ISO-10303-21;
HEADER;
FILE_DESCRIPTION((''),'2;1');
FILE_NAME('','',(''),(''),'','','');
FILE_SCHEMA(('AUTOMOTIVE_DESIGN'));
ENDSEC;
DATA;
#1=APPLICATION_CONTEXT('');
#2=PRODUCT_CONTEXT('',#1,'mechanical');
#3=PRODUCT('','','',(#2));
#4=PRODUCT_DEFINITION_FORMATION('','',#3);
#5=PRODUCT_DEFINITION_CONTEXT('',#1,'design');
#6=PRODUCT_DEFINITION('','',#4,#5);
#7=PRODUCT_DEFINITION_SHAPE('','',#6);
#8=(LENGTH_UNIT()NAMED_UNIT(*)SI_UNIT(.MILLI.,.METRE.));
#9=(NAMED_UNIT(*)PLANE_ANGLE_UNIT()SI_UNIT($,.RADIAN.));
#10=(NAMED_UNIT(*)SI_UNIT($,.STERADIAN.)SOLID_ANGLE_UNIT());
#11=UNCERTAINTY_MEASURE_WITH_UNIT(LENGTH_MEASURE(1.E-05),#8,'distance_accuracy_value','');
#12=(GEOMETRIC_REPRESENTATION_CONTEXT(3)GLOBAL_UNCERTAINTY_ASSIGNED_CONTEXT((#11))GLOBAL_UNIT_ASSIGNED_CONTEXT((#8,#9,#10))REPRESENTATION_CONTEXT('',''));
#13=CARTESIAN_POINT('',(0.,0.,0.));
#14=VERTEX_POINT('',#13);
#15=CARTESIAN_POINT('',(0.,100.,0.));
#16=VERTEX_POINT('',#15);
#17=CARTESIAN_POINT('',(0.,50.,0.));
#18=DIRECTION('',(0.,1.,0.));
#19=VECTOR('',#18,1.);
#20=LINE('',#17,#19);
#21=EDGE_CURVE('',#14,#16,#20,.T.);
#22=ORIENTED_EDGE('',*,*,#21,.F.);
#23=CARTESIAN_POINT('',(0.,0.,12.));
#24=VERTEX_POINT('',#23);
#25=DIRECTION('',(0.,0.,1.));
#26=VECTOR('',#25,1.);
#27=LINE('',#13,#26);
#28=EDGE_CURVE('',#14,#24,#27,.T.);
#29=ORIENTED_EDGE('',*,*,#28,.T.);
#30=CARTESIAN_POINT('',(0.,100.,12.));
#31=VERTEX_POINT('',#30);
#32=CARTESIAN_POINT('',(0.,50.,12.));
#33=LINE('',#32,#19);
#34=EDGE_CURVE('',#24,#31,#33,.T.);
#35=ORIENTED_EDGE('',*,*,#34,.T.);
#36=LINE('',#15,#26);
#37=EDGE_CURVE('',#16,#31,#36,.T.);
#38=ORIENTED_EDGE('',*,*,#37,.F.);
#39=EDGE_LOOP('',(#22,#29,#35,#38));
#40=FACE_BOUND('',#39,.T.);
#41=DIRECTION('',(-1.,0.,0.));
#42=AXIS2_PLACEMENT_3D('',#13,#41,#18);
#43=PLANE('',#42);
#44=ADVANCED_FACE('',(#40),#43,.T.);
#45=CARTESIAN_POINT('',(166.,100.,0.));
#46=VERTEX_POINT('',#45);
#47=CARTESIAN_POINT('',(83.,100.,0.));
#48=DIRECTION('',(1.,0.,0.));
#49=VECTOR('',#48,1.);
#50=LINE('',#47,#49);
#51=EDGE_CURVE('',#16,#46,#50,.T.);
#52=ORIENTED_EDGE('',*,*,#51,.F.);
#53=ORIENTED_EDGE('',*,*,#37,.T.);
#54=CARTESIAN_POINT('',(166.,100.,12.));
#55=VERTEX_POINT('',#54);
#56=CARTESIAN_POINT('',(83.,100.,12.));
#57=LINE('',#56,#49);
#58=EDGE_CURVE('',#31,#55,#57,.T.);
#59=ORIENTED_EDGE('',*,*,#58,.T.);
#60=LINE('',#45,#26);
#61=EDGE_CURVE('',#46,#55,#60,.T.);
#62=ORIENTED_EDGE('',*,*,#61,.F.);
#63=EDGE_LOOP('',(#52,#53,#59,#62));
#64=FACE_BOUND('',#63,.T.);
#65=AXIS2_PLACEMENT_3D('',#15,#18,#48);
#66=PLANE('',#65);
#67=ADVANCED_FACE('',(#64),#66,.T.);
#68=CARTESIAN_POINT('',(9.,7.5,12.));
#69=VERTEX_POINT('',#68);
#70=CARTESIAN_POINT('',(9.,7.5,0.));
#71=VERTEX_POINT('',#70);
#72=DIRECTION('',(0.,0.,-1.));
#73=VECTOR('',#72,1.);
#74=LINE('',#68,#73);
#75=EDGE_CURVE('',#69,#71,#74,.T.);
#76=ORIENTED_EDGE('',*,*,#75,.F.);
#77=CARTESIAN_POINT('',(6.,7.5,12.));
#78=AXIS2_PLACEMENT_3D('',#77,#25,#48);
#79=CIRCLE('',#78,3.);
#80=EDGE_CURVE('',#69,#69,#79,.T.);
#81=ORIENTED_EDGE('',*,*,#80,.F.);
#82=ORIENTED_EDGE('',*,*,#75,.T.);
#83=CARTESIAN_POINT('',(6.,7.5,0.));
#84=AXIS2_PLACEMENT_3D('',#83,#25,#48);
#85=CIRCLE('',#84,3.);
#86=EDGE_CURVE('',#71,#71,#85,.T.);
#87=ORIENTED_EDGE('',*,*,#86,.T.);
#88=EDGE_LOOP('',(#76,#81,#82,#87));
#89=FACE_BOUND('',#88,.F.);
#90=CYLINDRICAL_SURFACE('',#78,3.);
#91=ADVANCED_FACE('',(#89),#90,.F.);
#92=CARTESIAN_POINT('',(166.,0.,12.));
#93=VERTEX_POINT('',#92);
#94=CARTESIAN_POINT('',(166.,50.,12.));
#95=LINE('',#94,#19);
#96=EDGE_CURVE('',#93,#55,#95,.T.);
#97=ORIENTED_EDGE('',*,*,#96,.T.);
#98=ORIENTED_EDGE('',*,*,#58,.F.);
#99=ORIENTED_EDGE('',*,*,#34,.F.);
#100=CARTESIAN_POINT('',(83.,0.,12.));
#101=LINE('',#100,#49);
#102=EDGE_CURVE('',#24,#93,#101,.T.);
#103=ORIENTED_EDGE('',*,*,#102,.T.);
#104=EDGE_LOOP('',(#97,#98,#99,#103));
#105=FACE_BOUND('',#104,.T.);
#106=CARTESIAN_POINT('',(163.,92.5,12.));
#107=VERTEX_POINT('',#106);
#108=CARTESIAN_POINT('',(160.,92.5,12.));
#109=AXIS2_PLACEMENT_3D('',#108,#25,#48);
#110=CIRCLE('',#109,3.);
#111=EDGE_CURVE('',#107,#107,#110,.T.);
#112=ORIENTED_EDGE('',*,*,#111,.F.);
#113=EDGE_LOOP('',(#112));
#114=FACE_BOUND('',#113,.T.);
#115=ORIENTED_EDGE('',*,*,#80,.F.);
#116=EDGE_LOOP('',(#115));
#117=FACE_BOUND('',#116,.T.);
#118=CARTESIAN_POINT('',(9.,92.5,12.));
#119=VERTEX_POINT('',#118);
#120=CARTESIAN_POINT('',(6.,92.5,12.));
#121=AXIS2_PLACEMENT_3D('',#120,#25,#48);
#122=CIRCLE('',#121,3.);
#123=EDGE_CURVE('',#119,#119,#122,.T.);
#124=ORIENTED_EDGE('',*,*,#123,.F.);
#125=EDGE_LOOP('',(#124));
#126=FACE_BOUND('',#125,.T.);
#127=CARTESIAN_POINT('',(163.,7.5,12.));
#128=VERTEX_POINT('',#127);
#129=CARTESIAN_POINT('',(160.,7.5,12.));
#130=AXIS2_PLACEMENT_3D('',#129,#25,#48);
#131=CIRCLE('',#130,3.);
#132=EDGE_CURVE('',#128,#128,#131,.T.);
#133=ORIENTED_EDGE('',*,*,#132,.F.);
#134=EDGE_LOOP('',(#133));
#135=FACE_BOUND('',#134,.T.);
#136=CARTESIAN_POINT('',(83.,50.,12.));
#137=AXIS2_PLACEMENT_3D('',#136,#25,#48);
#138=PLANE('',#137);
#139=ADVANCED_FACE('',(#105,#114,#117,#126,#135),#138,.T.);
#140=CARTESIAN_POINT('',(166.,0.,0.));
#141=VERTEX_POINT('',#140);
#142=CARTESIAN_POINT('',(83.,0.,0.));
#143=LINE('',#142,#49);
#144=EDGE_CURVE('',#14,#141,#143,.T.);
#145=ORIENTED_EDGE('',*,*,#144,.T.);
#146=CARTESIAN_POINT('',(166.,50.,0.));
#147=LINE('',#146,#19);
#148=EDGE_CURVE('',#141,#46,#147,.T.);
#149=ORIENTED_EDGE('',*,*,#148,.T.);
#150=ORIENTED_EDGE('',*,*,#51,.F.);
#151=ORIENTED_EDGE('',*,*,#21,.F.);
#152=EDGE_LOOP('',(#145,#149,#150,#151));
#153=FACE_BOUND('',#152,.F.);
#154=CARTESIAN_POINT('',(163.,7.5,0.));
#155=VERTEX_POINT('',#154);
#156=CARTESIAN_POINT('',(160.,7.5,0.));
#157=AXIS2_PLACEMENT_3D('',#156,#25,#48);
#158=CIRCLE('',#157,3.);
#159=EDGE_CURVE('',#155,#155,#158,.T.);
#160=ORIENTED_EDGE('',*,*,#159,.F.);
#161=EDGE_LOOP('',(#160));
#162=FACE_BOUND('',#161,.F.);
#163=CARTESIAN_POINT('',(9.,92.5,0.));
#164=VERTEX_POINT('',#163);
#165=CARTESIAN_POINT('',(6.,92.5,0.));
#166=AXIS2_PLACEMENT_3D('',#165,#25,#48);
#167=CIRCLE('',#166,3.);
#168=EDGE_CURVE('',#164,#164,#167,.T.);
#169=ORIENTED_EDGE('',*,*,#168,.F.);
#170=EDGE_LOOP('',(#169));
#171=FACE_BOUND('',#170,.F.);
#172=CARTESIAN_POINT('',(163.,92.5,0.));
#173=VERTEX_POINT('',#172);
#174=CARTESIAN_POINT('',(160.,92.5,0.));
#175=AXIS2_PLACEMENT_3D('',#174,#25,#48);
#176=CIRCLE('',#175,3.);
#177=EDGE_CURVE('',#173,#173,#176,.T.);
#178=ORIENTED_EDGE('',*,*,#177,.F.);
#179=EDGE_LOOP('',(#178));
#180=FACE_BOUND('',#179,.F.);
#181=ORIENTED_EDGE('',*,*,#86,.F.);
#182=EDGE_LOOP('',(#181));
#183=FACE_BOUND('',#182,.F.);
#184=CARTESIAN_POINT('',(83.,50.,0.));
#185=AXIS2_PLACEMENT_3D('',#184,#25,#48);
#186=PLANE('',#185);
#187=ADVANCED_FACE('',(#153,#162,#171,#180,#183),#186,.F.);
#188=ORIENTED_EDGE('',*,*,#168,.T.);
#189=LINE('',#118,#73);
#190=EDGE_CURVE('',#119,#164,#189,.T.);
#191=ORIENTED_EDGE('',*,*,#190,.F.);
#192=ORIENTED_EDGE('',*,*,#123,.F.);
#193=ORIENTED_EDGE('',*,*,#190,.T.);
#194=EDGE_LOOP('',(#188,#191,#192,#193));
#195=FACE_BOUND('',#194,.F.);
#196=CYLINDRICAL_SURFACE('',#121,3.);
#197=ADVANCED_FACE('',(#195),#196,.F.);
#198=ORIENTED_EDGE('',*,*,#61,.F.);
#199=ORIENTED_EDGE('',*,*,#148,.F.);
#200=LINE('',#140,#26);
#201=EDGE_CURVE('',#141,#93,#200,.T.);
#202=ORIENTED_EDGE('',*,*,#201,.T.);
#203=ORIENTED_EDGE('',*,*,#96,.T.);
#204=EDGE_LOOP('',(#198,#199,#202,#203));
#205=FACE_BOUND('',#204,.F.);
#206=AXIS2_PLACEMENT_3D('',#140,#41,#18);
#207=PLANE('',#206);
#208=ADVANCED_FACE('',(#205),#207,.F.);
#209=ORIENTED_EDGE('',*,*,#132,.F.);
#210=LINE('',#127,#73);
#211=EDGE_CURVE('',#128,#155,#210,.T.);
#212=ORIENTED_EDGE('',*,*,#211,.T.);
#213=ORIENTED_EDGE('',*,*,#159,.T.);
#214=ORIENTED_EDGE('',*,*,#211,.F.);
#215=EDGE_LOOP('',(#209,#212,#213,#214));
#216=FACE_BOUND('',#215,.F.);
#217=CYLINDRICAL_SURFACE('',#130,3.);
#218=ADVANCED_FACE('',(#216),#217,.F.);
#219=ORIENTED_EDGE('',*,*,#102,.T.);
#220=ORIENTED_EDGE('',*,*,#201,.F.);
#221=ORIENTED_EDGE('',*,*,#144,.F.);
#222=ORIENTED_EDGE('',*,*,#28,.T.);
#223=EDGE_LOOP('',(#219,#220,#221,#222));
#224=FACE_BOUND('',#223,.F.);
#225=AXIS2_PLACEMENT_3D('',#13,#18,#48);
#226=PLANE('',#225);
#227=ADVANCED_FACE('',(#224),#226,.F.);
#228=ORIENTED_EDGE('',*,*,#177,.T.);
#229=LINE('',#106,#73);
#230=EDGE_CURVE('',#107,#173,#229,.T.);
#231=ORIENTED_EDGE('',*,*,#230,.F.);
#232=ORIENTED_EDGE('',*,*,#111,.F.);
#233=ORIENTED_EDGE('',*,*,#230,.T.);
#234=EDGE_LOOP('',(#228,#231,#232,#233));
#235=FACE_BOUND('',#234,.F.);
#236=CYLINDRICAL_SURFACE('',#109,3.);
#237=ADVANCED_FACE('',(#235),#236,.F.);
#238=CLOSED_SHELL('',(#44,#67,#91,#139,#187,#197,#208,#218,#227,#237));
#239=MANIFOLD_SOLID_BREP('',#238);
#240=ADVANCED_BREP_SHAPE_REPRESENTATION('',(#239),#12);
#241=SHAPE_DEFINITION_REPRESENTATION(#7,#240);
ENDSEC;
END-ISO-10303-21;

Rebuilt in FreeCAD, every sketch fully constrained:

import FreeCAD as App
import Part
import Sketcher
from FreeCAD import Vector


def add_polygon(sketch, points):
    """Adds a closed chain of lines whose ends are joined by coincident constraints."""
    first, n = sketch.GeometryCount, len(points)
    for a, b in zip(points, points[1:] + points[:1]):
        sketch.addGeometry(Part.LineSegment(App.Vector(*a, 0), App.Vector(*b, 0)), False)
    for i in range(n):
        sketch.addConstraint(Sketcher.Constraint("Coincident", first + i, 2, first + (i + 1) % n, 1))

doc = App.newDocument("Part")
body = doc.addObject("PartDesign::Body", "Body")

sketch1 = doc.addObject("Sketcher::SketchObject", "Sketch")
body.addObject(sketch1)
sketch1.AttachmentSupport = (doc.XY_Plane, [""])
sketch1.MapMode = "FlatFace"
add_polygon(sketch1, [(0, 100), (0, 0), (166, 0), (166, 100)])
sketch1.addConstraint([
    Sketcher.Constraint("Vertical", 0),
    Sketcher.Constraint("Horizontal", 1),
    Sketcher.Constraint("Vertical", 2),
    Sketcher.Constraint("Horizontal", 3),
    Sketcher.Constraint("Coincident", 0, 2, -1, 1),
    Sketcher.Constraint("DistanceX", 1, 1, 1, 2, 166.0),
    Sketcher.Constraint("DistanceY", 0, 2, 0, 1, 100.0),
])
pad1 = doc.addObject("PartDesign::Pad", "Pad")
body.addObject(pad1)
pad1.Profile = sketch1
pad1.Length = 12

sketch2 = doc.addObject("Sketcher::SketchObject", "Sketch001")
body.addObject(sketch2)
sketch2.AttachmentSupport = (doc.XY_Plane, [""])
sketch2.MapMode = "FlatFace"
sketch2.AttachmentOffset = App.Placement(Vector(0, 0, 12), App.Rotation())
sketch2.addGeometry([
    Part.Circle(Vector(6, 92.5, 0), Vector(0, 0, 1), 3),
    Part.Circle(Vector(6, 7.5, 0), Vector(0, 0, 1), 3),
    Part.Circle(Vector(160, 7.5, 0), Vector(0, 0, 1), 3),
    Part.Circle(Vector(160, 92.5, 0), Vector(0, 0, 1), 3),
], False)
sketch2.addConstraint([
    Sketcher.Constraint("Equal", 0, 1),
    Sketcher.Constraint("Equal", 1, 2),
    Sketcher.Constraint("Equal", 2, 3),
    Sketcher.Constraint("Horizontal", 1, 3, 2, 3),
    Sketcher.Constraint("Horizontal", 0, 3, 3, 3),
    Sketcher.Constraint("Vertical", 0, 3, 1, 3),
    Sketcher.Constraint("Vertical", 2, 3, 3, 3),
    Sketcher.Constraint("Diameter", 0, 6.0),
    Sketcher.Constraint("DistanceX", -1, 1, 0, 3, 6.0),
    Sketcher.Constraint("DistanceX", -1, 1, 2, 3, 160.0),
    Sketcher.Constraint("DistanceY", 1, 3, 0, 3, 85.0),
    Sketcher.Constraint("DistanceY", -1, 1, 0, 3, 92.5),
])
pocket1 = doc.addObject("PartDesign::Pocket", "Pocket")
body.addObject(pocket1)
pocket1.Profile = sketch2
pocket1.Type = "ThroughAll"

doc.recompute()
